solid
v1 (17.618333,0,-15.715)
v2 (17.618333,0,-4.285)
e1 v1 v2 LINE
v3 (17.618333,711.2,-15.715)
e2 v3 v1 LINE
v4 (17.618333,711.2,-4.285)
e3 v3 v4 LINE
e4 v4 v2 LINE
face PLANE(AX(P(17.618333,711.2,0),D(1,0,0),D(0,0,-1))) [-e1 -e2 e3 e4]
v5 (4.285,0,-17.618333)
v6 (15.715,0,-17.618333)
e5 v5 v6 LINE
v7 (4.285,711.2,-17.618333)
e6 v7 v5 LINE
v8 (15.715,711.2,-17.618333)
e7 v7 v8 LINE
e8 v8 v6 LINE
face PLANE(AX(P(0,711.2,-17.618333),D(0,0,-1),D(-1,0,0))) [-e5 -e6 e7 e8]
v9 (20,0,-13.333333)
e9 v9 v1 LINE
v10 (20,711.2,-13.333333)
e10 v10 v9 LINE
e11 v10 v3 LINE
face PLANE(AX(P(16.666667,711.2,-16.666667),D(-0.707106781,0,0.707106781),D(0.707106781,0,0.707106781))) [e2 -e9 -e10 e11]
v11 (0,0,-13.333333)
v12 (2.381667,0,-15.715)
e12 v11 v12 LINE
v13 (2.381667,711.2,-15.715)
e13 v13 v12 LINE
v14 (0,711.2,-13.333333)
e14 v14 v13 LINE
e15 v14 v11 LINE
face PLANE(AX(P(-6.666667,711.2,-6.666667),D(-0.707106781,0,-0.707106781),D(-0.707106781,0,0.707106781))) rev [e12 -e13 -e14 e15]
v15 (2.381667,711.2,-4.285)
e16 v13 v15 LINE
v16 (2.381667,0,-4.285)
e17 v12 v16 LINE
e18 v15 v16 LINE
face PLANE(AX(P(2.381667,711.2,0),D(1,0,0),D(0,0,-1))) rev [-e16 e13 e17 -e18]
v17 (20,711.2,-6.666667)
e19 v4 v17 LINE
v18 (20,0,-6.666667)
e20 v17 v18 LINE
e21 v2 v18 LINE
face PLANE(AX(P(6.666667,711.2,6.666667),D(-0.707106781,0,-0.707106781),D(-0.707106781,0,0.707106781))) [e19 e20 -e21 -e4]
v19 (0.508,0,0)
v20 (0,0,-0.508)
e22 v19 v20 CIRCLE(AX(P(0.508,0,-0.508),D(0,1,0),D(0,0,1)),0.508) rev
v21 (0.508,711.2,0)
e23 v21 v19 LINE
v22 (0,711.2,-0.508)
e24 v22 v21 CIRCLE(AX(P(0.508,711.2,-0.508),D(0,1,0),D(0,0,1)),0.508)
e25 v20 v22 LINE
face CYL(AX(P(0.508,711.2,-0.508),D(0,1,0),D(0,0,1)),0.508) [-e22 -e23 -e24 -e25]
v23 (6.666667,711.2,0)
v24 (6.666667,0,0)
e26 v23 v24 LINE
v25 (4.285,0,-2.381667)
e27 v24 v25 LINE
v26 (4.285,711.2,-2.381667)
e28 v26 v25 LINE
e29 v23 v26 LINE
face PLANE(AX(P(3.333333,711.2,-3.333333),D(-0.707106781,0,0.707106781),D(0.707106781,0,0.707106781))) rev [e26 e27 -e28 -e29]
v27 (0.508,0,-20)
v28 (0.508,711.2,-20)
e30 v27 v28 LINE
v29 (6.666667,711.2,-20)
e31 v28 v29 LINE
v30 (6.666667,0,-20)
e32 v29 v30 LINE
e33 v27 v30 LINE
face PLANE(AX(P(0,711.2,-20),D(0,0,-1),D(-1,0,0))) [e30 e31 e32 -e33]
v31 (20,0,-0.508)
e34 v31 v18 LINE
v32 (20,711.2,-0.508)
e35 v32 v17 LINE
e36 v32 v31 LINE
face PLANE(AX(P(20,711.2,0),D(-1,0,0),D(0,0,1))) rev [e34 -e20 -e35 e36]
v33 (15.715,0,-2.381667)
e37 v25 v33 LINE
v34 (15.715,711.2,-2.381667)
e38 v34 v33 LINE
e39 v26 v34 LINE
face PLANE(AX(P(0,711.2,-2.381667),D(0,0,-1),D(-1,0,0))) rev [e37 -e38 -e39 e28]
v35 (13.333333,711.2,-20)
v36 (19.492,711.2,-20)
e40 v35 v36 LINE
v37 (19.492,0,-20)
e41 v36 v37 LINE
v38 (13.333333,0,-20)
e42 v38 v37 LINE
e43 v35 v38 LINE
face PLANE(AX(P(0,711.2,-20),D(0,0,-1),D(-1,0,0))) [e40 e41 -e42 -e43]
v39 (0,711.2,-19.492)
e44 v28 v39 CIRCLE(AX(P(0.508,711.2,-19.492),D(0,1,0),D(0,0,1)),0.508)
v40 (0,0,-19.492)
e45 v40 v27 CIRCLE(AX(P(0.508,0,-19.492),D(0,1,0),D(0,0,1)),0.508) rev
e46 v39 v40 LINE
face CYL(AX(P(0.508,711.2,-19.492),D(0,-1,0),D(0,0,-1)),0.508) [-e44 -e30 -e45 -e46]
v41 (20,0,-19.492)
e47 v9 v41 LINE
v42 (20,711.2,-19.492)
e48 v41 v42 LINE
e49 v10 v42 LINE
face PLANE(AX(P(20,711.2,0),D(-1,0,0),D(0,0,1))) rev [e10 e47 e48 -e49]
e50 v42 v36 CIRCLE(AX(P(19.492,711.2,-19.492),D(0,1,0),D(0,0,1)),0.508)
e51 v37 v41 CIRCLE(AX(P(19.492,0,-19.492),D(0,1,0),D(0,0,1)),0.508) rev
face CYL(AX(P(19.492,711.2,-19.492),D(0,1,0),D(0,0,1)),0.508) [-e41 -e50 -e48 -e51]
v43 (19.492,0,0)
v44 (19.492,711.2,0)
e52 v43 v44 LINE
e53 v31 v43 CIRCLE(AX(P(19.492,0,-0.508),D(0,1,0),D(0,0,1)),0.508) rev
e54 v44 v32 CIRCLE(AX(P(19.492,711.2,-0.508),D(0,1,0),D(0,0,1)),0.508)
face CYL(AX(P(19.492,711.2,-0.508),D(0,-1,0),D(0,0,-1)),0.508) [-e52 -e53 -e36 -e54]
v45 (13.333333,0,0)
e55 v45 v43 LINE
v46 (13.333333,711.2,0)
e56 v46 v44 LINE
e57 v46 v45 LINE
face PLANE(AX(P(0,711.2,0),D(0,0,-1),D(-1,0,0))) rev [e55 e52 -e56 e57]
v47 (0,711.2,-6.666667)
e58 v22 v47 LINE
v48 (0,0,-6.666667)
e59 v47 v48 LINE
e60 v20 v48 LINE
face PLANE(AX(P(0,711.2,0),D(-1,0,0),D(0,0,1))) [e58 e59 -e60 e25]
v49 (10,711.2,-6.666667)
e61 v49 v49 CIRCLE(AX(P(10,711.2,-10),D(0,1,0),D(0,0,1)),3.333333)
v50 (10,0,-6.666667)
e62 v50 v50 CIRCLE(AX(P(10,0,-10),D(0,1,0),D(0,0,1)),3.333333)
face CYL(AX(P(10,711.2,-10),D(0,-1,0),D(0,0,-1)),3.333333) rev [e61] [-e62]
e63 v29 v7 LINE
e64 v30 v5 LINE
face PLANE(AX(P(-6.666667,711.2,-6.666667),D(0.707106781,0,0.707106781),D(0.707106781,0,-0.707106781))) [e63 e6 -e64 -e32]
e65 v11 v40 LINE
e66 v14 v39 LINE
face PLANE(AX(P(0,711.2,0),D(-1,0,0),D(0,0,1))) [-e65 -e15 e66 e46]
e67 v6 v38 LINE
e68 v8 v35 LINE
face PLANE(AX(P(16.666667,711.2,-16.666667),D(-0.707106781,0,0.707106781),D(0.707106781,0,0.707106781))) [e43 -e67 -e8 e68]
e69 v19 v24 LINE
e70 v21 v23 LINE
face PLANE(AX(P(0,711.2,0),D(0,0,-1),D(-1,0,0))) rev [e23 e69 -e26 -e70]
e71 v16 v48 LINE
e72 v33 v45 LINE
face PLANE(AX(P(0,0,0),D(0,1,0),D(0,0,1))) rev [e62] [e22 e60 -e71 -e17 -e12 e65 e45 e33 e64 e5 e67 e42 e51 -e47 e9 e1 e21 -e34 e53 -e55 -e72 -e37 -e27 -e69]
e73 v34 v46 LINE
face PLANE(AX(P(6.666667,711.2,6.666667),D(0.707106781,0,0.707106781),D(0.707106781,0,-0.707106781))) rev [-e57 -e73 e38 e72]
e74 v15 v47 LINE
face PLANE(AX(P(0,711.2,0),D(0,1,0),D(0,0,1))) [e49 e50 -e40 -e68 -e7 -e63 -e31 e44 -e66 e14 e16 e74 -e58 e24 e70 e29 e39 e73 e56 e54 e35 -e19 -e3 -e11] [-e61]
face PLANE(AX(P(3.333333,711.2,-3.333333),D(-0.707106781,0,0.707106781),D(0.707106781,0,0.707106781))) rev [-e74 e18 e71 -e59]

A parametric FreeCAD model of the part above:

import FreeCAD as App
import Part
import Sketcher
from FreeCAD import Vector
Q = App.Units.Quantity


def edges_at(feature, points):
    """Names of the edges that pass closest to the given points."""
    edges = feature.Shape.Edges
    near = lambda p: min(range(len(edges)), key=lambda i: edges[i].distToShape(Part.Vertex(*p))[0])
    return sorted({f"Edge{near(p) + 1}" for p in points})

doc = App.newDocument("Part")
params = doc.addObject("Spreadsheet::Sheet", "Params")
for row, (alias, value) in enumerate([
    ("sketch1_width", "0.45 in"),
    ("pad1_length", "28 in"),
    ("fillet_radius", "0.02 in"),
], start=1):
    params.set(f"A{row}", alias)
    params.set(f"B{row}", "=" + value)
    params.setAlias(f"B{row}", alias)

body = doc.addObject("PartDesign::Body", "Body")

# Sketch on XZ plane
sketch1 = body.newObject("Sketcher::SketchObject", "Sketch")
sketch1.AttachmentSupport = (doc.getObject("XZ_Plane"), [""])
sketch1.MapMode = "FlatFace"
sketch1.addGeometry(Part.LineSegment(Vector(4.3, -17.6, 0), Vector(6.7, -20, 0)), False)
sketch1.addGeometry(Part.LineSegment(Vector(6.7, -20, 0), Vector(0, -20, 0)), False)
sketch1.addGeometry(Part.LineSegment(Vector(0, -20, 0), Vector(0, -13.3, 0)), False)
sketch1.addGeometry(Part.LineSegment(Vector(0, -13.3, 0), Vector(2.4, -15.7, 0)), False)
sketch1.addGeometry(Part.LineSegment(Vector(2.4, -15.7, 0), Vector(2.4, -4.3, 0)), False)
sketch1.addGeometry(Part.LineSegment(Vector(2.4, -4.3, 0), Vector(0, -6.7, 0)), False)
sketch1.addGeometry(Part.LineSegment(Vector(0, -6.7, 0), Vector(0, 0, 0)), False)
sketch1.addGeometry(Part.LineSegment(Vector(0, 0, 0), Vector(6.7, 0, 0)), False)
sketch1.addGeometry(Part.LineSegment(Vector(6.7, 0, 0), Vector(4.3, -2.4, 0)), False)
sketch1.addGeometry(Part.LineSegment(Vector(4.3, -2.4, 0), Vector(15.7, -2.4, 0)), False)
sketch1.addGeometry(Part.LineSegment(Vector(15.7, -2.4, 0), Vector(13.3, 0, 0)), False)
sketch1.addGeometry(Part.LineSegment(Vector(13.3, 0, 0), Vector(20, 0, 0)), False)
sketch1.addGeometry(Part.LineSegment(Vector(20, 0, 0), Vector(20, -6.7, 0)), False)
sketch1.addGeometry(Part.LineSegment(Vector(20, -6.7, 0), Vector(17.6, -4.3, 0)), False)
sketch1.addGeometry(Part.LineSegment(Vector(17.6, -4.3, 0), Vector(17.6, -15.7, 0)), False)
sketch1.addGeometry(Part.LineSegment(Vector(17.6, -15.7, 0), Vector(20, -13.3, 0)), False)
sketch1.addGeometry(Part.LineSegment(Vector(20, -13.3, 0), Vector(20, -20, 0)), False)
sketch1.addGeometry(Part.LineSegment(Vector(20, -20, 0), Vector(13.3, -20, 0)), False)
sketch1.addGeometry(Part.LineSegment(Vector(13.3, -20, 0), Vector(15.7, -17.6, 0)), False)
sketch1.addGeometry(Part.LineSegment(Vector(15.7, -17.6, 0), Vector(4.3, -17.6, 0)), False)
sketch1.addGeometry(Part.Circle(Vector(10, -10, 0), Vector(0, 0, 1), 3.3), False)
sketch1.addConstraint(Sketcher.Constraint("Coincident", 0, 2, 1, 1))
sketch1.addConstraint(Sketcher.Constraint("Coincident", 1, 2, 2, 1))
sketch1.addConstraint(Sketcher.Constraint("Coincident", 2, 2, 3, 1))
sketch1.addConstraint(Sketcher.Constraint("Coincident", 3, 2, 4, 1))
sketch1.addConstraint(Sketcher.Constraint("Coincident", 4, 2, 5, 1))
sketch1.addConstraint(Sketcher.Constraint("Coincident", 5, 2, 6, 1))
sketch1.addConstraint(Sketcher.Constraint("Coincident", 6, 2, 7, 1))
sketch1.addConstraint(Sketcher.Constraint("Coincident", 7, 2, 8, 1))
sketch1.addConstraint(Sketcher.Constraint("Coincident", 8, 2, 9, 1))
sketch1.addConstraint(Sketcher.Constraint("Coincident", 9, 2, 10, 1))
sketch1.addConstraint(Sketcher.Constraint("Coincident", 10, 2, 11, 1))
sketch1.addConstraint(Sketcher.Constraint("Coincident", 11, 2, 12, 1))
sketch1.addConstraint(Sketcher.Constraint("Coincident", 12, 2, 13, 1))
sketch1.addConstraint(Sketcher.Constraint("Coincident", 13, 2, 14, 1))
sketch1.addConstraint(Sketcher.Constraint("Coincident", 14, 2, 15, 1))
sketch1.addConstraint(Sketcher.Constraint("Coincident", 15, 2, 16, 1))
sketch1.addConstraint(Sketcher.Constraint("Coincident", 16, 2, 17, 1))
sketch1.addConstraint(Sketcher.Constraint("Coincident", 17, 2, 18, 1))
sketch1.addConstraint(Sketcher.Constraint("Coincident", 18, 2, 19, 1))
sketch1.addConstraint(Sketcher.Constraint("Coincident", 19, 2, 0, 1))
sketch1.addConstraint(Sketcher.Constraint("Horizontal", 1))
sketch1.addConstraint(Sketcher.Constraint("Vertical", 2))
sketch1.addConstraint(Sketcher.Constraint("Vertical", 4))
sketch1.addConstraint(Sketcher.Constraint("Vertical", 6))
sketch1.addConstraint(Sketcher.Constraint("Horizontal", 7))
sketch1.addConstraint(Sketcher.Constraint("Horizontal", 9))
sketch1.addConstraint(Sketcher.Constraint("Horizontal", 11))
sketch1.addConstraint(Sketcher.Constraint("Vertical", 12))
sketch1.addConstraint(Sketcher.Constraint("Vertical", 14))
sketch1.addConstraint(Sketcher.Constraint("Vertical", 16))
sketch1.addConstraint(Sketcher.Constraint("Horizontal", 17))
sketch1.addConstraint(Sketcher.Constraint("Horizontal", 19))
sketch1.addConstraint(Sketcher.Constraint("Coincident", 6, 2, -1, 1))
sketch1.addConstraint(Sketcher.Constraint("PointOnObject", 1, 2, -2))
sketch1.addConstraint(Sketcher.Constraint("PointOnObject", 10, 2, -1))
sketch1.addConstraint(Sketcher.Constraint("Parallel", 0, 3))
sketch1.addConstraint(Sketcher.Constraint("Perpendicular", 3, 5))
sketch1.addConstraint(Sketcher.Constraint("Parallel", 5, 8))
sketch1.addConstraint(Sketcher.Constraint("Perpendicular", 8, 10))
sketch1.addConstraint(Sketcher.Constraint("Parallel", 10, 13))
sketch1.addConstraint(Sketcher.Constraint("Perpendicular", 13, 15))
sketch1.addConstraint(Sketcher.Constraint("Parallel", 15, 18))
sketch1.addConstraint(Sketcher.Constraint("Horizontal", 5, 2, 12, 2))
sketch1.addConstraint(Sketcher.Constraint("Horizontal", 4, 2, 13, 2))
sketch1.addConstraint(Sketcher.Constraint("Horizontal", 3, 2, 14, 2))
sketch1.addConstraint(Sketcher.Constraint("Horizontal", 2, 2, 15, 2))
sketch1.addConstraint(Sketcher.Constraint("Horizontal", 1, 2, 16, 2))
sketch1.addConstraint(Sketcher.Constraint("Vertical", 0, 2, 7, 2))
sketch1.addConstraint(Sketcher.Constraint("Vertical", 12, 2, 15, 2))
sketch1.addConstraint(Sketcher.Constraint("Vertical", 10, 2, 17, 2))
sketch1.addConstraint(Sketcher.Constraint("Vertical", 9, 2, 18, 2))
sketch1.addConstraint(Sketcher.Constraint("Equal", 7, 11))
sketch1.addConstraint(Sketcher.Constraint("Equal", 17, 2))
sketch1.addConstraint(Sketcher.Constraint("Equal", 19, 4))
sketch1.addConstraint(Sketcher.Constraint("Equal", 2, 6))
sketch1.addConstraint(Sketcher.Constraint("Equal", 0, 3))
sketch1.addConstraint(Sketcher.Constraint("DistanceX", 9, 1, 9, 2, Q("0.45 in")))
sketch1.addConstraint(Sketcher.Constraint("DistanceY", 3, 2, 20, 3, Q("0.225 in")))
sketch1.addConstraint(Sketcher.Constraint("DistanceX", 8, 2, 20, 3, Q("0.225 in")))
sketch1.addConstraint(Sketcher.Constraint("Diameter", 20, Q("6.666667 mm")))
sketch1.addConstraint(Sketcher.Constraint("DistanceX", -1, 1, 20, 3, Q("10 mm")))
sketch1.addConstraint(Sketcher.Constraint("DistanceX", 1, 2, 1, 1, Q("6.666667 mm")))
sketch1.setExpression("Constraints[56]", "Params.sketch1_width")
pad1 = body.newObject("PartDesign::Pad", "Pad")
pad1.Profile = sketch1
pad1.setExpression("Length", "Params.pad1_length")
pad1.Reversed = True
doc.recompute()

fillet = body.newObject("PartDesign::Fillet", "Fillet")
fillet.Base = (pad1, edges_at(pad1, [
    (20, 355.6, 0),
    (0, 355.6, 0),
    (0, 355.6, -20),
    (20, 355.6, -20),
]))
fillet.setExpression("Radius", "Params.fillet_radius")

doc.recompute()
